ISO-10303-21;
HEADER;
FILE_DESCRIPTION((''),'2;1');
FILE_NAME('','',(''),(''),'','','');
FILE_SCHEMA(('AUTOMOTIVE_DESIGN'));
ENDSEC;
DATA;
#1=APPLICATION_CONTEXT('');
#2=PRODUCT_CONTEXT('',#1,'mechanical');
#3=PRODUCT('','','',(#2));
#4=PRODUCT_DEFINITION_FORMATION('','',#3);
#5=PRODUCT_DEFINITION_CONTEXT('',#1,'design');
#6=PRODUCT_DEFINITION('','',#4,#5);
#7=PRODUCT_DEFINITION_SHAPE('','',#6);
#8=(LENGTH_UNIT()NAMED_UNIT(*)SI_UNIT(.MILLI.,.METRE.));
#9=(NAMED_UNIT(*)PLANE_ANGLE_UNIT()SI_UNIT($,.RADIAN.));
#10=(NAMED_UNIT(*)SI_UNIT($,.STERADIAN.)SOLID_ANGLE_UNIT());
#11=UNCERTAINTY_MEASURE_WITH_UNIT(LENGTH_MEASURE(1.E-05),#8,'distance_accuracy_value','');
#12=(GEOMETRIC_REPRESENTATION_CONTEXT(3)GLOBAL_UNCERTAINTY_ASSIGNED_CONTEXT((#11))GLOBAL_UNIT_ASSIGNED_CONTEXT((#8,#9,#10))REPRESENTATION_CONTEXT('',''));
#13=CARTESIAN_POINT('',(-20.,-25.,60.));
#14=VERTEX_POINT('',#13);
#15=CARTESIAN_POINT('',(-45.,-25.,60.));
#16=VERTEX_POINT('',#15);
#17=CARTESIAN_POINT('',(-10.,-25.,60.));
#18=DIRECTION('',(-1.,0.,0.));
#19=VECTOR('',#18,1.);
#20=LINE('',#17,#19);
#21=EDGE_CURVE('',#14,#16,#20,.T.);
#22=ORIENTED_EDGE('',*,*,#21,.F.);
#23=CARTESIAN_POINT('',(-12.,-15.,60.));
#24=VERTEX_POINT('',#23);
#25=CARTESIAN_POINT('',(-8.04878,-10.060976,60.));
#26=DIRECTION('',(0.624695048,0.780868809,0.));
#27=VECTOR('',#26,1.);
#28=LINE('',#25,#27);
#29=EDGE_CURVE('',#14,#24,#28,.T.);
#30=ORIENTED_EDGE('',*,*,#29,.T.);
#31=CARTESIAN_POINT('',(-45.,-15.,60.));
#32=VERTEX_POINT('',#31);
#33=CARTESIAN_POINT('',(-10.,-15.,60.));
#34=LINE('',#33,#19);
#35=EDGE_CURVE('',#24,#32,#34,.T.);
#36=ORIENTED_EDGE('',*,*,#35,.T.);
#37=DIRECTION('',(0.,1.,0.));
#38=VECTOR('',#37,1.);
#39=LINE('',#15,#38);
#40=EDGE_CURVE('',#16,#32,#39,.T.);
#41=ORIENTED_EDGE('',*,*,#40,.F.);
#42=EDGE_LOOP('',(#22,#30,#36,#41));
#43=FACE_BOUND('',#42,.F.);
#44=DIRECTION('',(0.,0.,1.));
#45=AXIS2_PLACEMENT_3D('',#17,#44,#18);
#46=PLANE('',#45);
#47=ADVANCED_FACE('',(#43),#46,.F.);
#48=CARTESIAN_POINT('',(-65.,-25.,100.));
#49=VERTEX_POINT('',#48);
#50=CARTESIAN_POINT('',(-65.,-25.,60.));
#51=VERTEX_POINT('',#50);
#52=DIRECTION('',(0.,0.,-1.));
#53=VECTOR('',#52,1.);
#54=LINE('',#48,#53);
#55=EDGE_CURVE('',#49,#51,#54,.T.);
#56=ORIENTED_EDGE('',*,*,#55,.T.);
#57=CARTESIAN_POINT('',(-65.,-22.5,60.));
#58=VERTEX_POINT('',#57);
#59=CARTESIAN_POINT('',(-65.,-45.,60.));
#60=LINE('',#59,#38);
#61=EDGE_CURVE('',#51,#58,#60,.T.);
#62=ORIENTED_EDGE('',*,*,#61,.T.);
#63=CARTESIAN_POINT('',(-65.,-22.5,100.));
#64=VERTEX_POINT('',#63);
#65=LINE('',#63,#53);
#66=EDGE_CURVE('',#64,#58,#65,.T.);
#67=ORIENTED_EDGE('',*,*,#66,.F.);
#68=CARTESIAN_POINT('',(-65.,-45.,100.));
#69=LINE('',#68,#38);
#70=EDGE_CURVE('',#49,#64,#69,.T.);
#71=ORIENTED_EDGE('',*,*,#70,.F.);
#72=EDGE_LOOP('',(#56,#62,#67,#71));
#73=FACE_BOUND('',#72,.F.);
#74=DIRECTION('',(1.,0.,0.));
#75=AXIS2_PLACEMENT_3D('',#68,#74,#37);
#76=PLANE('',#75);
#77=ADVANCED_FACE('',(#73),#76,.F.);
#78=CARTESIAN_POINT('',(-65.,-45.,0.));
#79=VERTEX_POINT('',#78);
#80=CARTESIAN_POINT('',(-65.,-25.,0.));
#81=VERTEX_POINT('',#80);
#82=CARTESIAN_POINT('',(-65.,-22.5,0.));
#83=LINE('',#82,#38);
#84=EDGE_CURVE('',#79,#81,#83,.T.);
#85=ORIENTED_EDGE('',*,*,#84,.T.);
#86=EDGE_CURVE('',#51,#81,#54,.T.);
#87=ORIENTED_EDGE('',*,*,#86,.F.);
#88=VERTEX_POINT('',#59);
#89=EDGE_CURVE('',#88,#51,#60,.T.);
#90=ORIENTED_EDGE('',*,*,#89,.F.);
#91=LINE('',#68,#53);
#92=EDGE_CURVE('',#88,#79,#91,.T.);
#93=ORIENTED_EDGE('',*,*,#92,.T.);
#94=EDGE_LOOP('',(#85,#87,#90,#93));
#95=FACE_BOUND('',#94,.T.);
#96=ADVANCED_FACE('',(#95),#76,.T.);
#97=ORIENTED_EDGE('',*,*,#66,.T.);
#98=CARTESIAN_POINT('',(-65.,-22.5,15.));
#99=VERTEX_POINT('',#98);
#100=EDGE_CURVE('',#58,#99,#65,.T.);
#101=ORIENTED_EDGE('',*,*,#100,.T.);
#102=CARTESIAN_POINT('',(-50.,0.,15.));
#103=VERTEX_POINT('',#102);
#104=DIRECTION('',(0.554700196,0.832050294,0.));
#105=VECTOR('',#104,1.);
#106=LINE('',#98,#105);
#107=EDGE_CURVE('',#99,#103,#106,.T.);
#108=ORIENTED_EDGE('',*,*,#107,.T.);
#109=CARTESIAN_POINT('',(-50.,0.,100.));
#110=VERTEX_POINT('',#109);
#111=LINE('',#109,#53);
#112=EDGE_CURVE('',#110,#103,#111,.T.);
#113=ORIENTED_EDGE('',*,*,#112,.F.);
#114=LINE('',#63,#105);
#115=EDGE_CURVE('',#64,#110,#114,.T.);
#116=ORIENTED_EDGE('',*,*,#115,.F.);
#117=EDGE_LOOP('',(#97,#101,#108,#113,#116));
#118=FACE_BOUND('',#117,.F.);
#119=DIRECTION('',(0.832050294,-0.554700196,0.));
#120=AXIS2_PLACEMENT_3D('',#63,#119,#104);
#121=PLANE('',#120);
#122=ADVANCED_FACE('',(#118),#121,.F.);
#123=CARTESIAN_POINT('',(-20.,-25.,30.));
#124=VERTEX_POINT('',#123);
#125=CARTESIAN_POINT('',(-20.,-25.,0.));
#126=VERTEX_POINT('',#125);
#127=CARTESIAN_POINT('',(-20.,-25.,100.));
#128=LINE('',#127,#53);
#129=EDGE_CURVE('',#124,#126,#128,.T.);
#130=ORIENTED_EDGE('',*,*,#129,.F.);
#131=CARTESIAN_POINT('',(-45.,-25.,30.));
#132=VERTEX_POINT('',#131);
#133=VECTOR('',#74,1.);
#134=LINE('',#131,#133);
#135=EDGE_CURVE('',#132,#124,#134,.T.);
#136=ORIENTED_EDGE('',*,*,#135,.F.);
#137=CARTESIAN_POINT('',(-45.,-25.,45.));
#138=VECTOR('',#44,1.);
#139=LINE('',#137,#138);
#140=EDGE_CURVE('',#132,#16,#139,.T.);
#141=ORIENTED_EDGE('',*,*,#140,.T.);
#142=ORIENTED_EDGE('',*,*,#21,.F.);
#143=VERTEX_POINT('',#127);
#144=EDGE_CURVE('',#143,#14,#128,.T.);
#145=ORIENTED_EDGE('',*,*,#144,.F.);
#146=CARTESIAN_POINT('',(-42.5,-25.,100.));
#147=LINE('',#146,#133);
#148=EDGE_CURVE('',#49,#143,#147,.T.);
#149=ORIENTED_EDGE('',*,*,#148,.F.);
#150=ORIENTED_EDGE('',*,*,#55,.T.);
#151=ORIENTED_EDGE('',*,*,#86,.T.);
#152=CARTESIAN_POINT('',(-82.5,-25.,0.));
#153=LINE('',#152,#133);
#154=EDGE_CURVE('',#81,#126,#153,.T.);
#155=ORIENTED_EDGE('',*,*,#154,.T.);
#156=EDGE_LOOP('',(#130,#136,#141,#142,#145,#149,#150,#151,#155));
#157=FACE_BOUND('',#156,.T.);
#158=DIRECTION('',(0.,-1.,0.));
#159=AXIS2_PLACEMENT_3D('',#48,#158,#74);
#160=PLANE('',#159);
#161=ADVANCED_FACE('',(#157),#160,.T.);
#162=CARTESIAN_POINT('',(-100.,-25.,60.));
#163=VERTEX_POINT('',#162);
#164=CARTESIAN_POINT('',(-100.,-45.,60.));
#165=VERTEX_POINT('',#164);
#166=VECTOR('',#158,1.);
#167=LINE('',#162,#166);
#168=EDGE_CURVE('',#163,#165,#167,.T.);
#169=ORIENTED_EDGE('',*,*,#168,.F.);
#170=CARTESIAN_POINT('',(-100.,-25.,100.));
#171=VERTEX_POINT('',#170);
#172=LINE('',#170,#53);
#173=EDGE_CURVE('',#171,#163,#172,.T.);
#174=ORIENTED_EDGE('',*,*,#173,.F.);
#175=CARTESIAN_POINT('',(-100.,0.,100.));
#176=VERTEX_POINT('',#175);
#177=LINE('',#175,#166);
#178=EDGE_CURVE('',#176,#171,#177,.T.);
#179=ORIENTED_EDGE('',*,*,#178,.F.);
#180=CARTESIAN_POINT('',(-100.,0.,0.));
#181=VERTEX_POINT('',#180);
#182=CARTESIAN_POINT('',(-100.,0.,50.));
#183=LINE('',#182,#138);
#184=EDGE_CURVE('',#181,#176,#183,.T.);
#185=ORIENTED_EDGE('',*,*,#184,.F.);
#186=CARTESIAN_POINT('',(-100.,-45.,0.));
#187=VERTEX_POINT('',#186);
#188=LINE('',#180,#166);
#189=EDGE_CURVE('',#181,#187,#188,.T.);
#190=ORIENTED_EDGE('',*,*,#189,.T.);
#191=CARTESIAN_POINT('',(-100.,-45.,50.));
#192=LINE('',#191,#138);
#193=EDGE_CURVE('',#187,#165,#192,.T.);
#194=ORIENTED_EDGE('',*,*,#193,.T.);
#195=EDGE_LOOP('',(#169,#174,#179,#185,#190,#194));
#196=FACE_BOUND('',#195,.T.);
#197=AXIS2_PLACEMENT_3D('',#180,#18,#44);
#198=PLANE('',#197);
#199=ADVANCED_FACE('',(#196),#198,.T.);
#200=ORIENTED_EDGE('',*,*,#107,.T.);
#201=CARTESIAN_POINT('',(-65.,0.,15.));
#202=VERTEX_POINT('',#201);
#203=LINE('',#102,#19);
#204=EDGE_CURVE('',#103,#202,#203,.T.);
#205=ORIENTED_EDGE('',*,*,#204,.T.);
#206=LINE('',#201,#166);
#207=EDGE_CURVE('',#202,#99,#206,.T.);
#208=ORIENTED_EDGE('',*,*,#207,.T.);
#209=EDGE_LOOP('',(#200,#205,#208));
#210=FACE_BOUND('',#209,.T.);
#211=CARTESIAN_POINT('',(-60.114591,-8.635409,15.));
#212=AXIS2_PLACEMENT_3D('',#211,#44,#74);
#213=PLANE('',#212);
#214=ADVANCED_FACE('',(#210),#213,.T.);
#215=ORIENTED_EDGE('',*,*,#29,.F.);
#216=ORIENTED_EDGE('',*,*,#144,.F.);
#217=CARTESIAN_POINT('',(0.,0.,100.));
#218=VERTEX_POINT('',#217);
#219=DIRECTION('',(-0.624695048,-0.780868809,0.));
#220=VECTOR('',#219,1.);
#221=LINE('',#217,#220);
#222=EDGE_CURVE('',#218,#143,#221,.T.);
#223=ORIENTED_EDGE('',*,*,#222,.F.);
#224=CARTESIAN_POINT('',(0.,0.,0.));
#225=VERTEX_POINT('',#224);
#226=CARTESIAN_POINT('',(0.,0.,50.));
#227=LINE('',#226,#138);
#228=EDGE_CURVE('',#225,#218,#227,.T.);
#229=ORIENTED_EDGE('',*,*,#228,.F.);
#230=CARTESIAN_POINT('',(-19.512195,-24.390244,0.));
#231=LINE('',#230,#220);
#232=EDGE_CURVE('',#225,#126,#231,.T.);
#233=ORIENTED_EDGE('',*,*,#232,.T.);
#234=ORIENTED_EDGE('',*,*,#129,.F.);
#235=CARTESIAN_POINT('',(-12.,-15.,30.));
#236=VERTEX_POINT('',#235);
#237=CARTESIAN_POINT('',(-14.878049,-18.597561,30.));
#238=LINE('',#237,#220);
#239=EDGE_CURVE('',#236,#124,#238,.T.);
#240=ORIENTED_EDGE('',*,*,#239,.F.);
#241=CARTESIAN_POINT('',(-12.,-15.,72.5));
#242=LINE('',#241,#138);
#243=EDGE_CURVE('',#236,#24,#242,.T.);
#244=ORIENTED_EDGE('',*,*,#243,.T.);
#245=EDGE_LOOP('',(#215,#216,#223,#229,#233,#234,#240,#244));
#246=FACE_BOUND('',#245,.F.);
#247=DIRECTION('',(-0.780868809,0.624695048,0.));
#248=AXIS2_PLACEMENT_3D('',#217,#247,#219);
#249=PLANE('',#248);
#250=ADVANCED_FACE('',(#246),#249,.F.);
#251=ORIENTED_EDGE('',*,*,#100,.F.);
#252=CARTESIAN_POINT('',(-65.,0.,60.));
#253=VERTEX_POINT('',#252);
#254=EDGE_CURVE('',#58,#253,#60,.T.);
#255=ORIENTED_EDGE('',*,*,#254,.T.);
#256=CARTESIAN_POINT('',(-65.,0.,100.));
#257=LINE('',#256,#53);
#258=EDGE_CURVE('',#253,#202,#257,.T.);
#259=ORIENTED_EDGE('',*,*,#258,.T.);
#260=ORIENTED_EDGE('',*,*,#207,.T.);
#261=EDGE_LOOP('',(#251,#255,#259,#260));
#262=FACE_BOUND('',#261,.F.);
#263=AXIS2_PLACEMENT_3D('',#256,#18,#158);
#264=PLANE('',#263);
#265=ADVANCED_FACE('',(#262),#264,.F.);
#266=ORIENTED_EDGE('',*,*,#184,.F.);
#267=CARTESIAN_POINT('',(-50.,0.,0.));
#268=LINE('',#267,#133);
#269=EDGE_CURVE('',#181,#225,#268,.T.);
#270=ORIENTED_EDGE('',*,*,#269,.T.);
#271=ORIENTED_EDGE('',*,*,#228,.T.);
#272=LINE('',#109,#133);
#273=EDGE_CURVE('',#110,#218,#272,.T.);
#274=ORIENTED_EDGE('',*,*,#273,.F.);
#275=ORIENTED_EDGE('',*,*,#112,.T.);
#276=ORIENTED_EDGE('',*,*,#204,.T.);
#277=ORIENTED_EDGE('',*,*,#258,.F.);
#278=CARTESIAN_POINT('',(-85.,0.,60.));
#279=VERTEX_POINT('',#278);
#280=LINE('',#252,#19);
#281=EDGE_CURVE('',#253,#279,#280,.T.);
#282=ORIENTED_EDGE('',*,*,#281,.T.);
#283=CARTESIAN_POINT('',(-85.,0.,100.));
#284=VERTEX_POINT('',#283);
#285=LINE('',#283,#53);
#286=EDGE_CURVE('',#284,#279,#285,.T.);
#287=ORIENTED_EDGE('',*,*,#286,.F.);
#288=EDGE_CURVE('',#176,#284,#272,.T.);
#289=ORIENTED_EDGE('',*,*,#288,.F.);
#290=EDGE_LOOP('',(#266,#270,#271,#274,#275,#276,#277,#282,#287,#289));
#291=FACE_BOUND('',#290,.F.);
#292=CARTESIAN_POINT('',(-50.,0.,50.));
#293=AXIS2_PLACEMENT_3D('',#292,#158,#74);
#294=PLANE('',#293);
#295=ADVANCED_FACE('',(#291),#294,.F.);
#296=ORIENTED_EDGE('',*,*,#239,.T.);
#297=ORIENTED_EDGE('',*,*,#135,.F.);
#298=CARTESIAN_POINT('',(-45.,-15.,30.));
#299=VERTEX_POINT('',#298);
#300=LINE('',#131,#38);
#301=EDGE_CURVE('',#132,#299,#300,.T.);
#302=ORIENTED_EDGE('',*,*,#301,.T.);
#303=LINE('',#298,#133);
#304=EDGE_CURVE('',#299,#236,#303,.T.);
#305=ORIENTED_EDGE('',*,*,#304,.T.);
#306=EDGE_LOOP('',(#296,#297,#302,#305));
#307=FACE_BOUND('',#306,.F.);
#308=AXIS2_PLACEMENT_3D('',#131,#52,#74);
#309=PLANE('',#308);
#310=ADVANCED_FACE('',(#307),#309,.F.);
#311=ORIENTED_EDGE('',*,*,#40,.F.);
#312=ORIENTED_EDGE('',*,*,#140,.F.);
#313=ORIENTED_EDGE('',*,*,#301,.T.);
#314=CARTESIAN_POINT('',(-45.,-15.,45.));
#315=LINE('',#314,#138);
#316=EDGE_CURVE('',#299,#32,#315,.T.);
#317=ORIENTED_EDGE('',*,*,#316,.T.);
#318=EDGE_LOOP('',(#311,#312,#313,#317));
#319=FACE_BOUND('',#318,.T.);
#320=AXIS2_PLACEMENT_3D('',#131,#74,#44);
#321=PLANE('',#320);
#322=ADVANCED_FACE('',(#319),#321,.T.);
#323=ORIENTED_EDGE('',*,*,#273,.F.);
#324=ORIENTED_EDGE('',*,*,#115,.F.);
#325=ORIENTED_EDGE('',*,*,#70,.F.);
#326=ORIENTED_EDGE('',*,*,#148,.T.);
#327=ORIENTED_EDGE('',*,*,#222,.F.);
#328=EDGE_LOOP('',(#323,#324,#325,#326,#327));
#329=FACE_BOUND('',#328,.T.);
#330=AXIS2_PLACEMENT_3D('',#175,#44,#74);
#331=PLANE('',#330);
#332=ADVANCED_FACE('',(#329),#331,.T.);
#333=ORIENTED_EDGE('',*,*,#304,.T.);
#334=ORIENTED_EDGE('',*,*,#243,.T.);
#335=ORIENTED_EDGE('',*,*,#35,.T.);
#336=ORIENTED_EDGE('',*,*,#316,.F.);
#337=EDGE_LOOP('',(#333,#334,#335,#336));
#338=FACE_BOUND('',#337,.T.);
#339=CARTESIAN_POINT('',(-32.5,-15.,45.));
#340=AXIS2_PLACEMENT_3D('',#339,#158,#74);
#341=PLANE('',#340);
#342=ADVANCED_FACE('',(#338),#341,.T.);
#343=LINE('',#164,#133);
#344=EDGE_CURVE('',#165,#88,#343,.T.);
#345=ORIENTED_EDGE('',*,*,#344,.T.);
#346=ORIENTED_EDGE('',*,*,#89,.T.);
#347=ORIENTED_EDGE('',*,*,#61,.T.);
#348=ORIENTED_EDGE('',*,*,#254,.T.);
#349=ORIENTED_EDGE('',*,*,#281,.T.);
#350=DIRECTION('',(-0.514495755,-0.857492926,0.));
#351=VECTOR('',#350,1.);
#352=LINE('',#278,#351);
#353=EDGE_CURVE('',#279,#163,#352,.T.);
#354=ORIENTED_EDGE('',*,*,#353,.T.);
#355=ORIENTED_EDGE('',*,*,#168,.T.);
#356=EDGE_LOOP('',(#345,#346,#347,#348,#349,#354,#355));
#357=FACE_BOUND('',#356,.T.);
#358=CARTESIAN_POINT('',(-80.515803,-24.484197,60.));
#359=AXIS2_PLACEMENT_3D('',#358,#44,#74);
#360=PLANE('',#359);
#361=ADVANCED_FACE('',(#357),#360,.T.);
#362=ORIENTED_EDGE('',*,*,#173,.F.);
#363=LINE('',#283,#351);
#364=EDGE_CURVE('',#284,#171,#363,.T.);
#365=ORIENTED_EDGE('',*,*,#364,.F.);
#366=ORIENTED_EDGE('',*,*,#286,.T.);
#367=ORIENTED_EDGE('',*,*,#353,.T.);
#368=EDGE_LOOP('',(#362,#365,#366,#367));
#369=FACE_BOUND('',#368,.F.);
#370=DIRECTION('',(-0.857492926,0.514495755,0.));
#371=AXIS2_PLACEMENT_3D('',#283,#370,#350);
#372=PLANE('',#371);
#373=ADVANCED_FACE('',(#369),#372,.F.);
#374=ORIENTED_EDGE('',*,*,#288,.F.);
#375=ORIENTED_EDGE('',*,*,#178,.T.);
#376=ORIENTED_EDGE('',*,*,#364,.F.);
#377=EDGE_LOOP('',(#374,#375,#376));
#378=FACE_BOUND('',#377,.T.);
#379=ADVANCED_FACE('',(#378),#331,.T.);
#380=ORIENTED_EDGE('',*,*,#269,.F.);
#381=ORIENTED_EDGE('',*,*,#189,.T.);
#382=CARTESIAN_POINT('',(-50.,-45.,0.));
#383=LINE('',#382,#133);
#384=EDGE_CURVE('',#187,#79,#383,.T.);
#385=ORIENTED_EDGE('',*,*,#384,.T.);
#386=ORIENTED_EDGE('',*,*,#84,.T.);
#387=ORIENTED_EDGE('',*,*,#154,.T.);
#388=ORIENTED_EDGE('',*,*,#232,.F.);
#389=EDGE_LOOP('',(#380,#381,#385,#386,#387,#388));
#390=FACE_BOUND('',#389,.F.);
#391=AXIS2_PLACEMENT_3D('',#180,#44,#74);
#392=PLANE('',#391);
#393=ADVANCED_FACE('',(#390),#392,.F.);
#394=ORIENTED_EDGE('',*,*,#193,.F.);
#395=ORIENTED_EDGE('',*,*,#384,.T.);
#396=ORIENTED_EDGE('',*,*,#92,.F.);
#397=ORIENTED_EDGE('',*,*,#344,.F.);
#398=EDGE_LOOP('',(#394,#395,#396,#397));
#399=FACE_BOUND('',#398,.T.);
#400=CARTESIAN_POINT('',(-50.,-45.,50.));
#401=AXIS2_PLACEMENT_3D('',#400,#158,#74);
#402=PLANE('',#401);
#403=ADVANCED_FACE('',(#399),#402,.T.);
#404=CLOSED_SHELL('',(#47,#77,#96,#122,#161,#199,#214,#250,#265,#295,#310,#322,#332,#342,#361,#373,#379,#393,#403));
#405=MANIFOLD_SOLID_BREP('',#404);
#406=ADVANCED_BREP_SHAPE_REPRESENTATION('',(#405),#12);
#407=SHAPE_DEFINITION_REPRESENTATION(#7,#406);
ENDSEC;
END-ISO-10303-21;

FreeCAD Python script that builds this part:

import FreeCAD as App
import Part
import Sketcher

V = App.Vector

doc = App.newDocument("Part")
body = doc.addObject("PartDesign::Body", "Body")

# Sketch on XZ plane
sketch1 = body.newObject("Sketcher::SketchObject", "Sketch")
sketch1.AttachmentSupport = (doc.getObject("XZ_Plane"), [""])
sketch1.MapMode = "FlatFace"
sketch1.addGeometry([
    Part.LineSegment(V(-100, 100, 0), V(-100, 0, 0)),
    Part.LineSegment(V(-100, 0, 0), V(0, 0, 0)),
    Part.LineSegment(V(0, 0, 0), V(0, 100, 0)),
    Part.LineSegment(V(0, 100, 0), V(-100, 100, 0)),
], False)
sketch1.addConstraint([
    Sketcher.Constraint("Coincident", 0, 2, 1, 1),
    Sketcher.Constraint("Coincident", 1, 2, 2, 1),
    Sketcher.Constraint("Coincident", 2, 2, 3, 1),
    Sketcher.Constraint("Coincident", 3, 2, 0, 1),
    Sketcher.Constraint("Vertical", 0),
    Sketcher.Constraint("Horizontal", 1),
    Sketcher.Constraint("Vertical", 2),
    Sketcher.Constraint("Horizontal", 3),
    Sketcher.Constraint("Coincident", 1, 2, -1, 1),
    Sketcher.Constraint("Equal", 3, 0),
    Sketcher.Constraint("DistanceX", 1, 1, 1, 2, 100.0),
])
pad1 = body.newObject("PartDesign::Pad", "Pad")
pad1.Profile = sketch1
pad1.Length = 45

# Sketch on XY plane
sketch2 = body.newObject("Sketcher::SketchObject", "Sketch001")
sketch2.AttachmentSupport = (doc.getObject("XY_Plane"), [""])
sketch2.MapMode = "FlatFace"
sketch2.AttachmentOffset = App.Placement(V(0, 0, 100), App.Rotation())
sketch2.addGeometry([
    Part.LineSegment(V(-100, -25, 0), V(-100, -45, 0)),  # 0
    Part.LineSegment(V(-100, -45, 0), V(-65, -45, 0)),  # 1
    Part.LineSegment(V(-65, -45, 0), V(-65, 0, 0)),  # 2
    Part.LineSegment(V(-65, 0, 0), V(-85, 0, 0)),  # 3
    Part.LineSegment(V(-85, 0, 0), V(-100, -25, 0)),  # 4
], False)
sketch2.addConstraint([
    Sketcher.Constraint("Coincident", 0, 2, 1, 1),
    Sketcher.Constraint("Coincident", 1, 2, 2, 1),
    Sketcher.Constraint("Coincident", 2, 2, 3, 1),
    Sketcher.Constraint("Coincident", 3, 2, 4, 1),
    Sketcher.Constraint("Coincident", 4, 2, 0, 1),
    Sketcher.Constraint("Vertical", 0),
    Sketcher.Constraint("Horizontal", 1),
    Sketcher.Constraint("Vertical", 2),
    Sketcher.Constraint("Horizontal", 3),
    Sketcher.Constraint("PointOnObject", 2, 2, -1),
    Sketcher.Constraint("Equal", 3, 0),
    Sketcher.Constraint("DistanceX", 1, 1, 1, 2, 35.0),
    Sketcher.Constraint("DistanceX", 3, 2, 3, 1, 20.0),
    Sketcher.Constraint("DistanceY", 2, 1, 2, 2, 45.0),
    Sketcher.Constraint("DistanceX", 0, 2, -1, 1, 100.0),
])
pocket1 = body.newObject("PartDesign::Pocket", "Pocket")
pocket1.Profile = sketch2
pocket1.Length = 40

# Sketch on XY plane
sketch3 = body.newObject("Sketcher::SketchObject", "Sketch002")
sketch3.AttachmentSupport = (doc.getObject("XY_Plane"), [""])
sketch3.MapMode = "FlatFace"
sketch3.AttachmentOffset = App.Placement(V(0, 0, 100), App.Rotation())
sketch3.addGeometry([
    Part.LineSegment(V(-50, 0, 0), V(-65, 0, 0)),
    Part.LineSegment(V(-65, 0, 0), V(-65, -22, 0)),
    Part.LineSegment(V(-65, -22, 0), V(-50, 0, 0)),
], False)
sketch3.addConstraint([
    Sketcher.Constraint("Coincident", 0, 2, 1, 1),
    Sketcher.Constraint("Coincident", 1, 2, 2, 1),
    Sketcher.Constraint("Coincident", 2, 2, 0, 1),
    Sketcher.Constraint("Horizontal", 0),
    Sketcher.Constraint("Vertical", 1),
    Sketcher.Constraint("PointOnObject", 0, 2, -1),
    Sketcher.Constraint("DistanceX", 0, 2, 0, 1, 15.0),
    Sketcher.Constraint("DistanceY", 1, 2, 1, 1, 22.5),
    Sketcher.Constraint("DistanceX", 0, 2, -1, 1, 65.0),
])
pocket2 = body.newObject("PartDesign::Pocket", "Pocket001")
pocket2.Profile = sketch3
pocket2.Length = 85

# Sketch on XY plane
sketch4 = body.newObject("Sketcher::SketchObject", "Sketch003")
sketch4.AttachmentSupport = (doc.getObject("XY_Plane"), [""])
sketch4.MapMode = "FlatFace"
sketch4.AttachmentOffset = App.Placement(V(0, 0, 100), App.Rotation())
sketch4.addGeometry([
    Part.LineSegment(V(-65, -25, 0), V(-65, -45, 0)),
    Part.LineSegment(V(-65, -45, 0), V(-20, -45, 0)),
    Part.LineSegment(V(-20, -45, 0), V(-20, -25, 0)),
    Part.LineSegment(V(-20, -25, 0), V(-65, -25, 0)),
], False)
sketch4.addConstraint([
    Sketcher.Constraint("Coincident", 0, 2, 1, 1),
    Sketcher.Constraint("Coincident", 1, 2, 2, 1),
    Sketcher.Constraint("Coincident", 2, 2, 3, 1),
    Sketcher.Constraint("Coincident", 3, 2, 0, 1),
    Sketcher.Constraint("Vertical", 0),
    Sketcher.Constraint("Horizontal", 1),
    Sketcher.Constraint("Vertical", 2),
    Sketcher.Constraint("Horizontal", 3),
    Sketcher.Constraint("DistanceX", 1, 1, 1, 2, 45.0),
    Sketcher.Constraint("DistanceY", 0, 2, 0, 1, 20.0),
    Sketcher.Constraint("DistanceX", 0, 2, -1, 1, 65.0),
    Sketcher.Constraint("DistanceY", 0, 2, -1, 1, 45.0),
])
pocket3 = body.newObject("PartDesign::Pocket", "Pocket002")
pocket3.Profile = sketch4
pocket3.Type = "ThroughAll"

# Sketch on XY plane
sketch5 = body.newObject("Sketcher::SketchObject", "Sketch004")
sketch5.AttachmentSupport = (doc.getObject("XY_Plane"), [""])
sketch5.MapMode = "FlatFace"
sketch5.AttachmentOffset = App.Placement(V(0, 0, 100), App.Rotation())
sketch5.addGeometry([
    Part.LineSegment(V(0, 0, 0), V(-20, -25, 0)),
    Part.LineSegment(V(-20, -25, 0), V(-20, -45, 0)),
    Part.LineSegment(V(-20, -45, 0), V(0, -45, 0)),
    Part.LineSegment(V(0, -45, 0), V(0, 0, 0)),
], False)
sketch5.addConstraint([
    Sketcher.Constraint("Coincident", 0, 2, 1, 1),
    Sketcher.Constraint("Coincident", 1, 2, 2, 1),
    Sketcher.Constraint("Coincident", 2, 2, 3, 1),
    Sketcher.Constraint("Coincident", 3, 2, 0, 1),
    Sketcher.Constraint("Vertical", 1),
    Sketcher.Constraint("Horizontal", 2),
    Sketcher.Constraint("Vertical", 3),
    Sketcher.Constraint("Coincident", 3, 2, -1, 1),
    Sketcher.Constraint("Equal", 2, 1),
    Sketcher.Constraint("DistanceX", 2, 1, 2, 2, 20.0),
    Sketcher.Constraint("DistanceY", 3, 1, 3, 2, 45.0),
])
pocket4 = body.newObject("PartDesign::Pocket", "Pocket003")
pocket4.Profile = sketch5
pocket4.Type = "ThroughAll"

# Sketch on XZ plane
sketch6 = body.newObject("Sketcher::SketchObject", "Sketch005")
sketch6.AttachmentSupport = (doc.getObject("XZ_Plane"), [""])
sketch6.MapMode = "FlatFace"
sketch6.AttachmentOffset = App.Placement(V(0, 0, 25), App.Rotation())
sketch6.addGeometry([
    Part.LineSegment(V(-45, 60, 0), V(-45, 30, 0)),
    Part.LineSegment(V(-45, 30, 0), V(-10, 30, 0)),
    Part.LineSegment(V(-10, 30, 0), V(-10, 60, 0)),
    Part.LineSegment(V(-10, 60, 0), V(-45, 60, 0)),
], False)
sketch6.addConstraint([
    Sketcher.Constraint("Coincident", 0, 2, 1, 1),
    Sketcher.Constraint("Coincident", 1, 2, 2, 1),
    Sketcher.Constraint("Coincident", 2, 2, 3, 1),
    Sketcher.Constraint("Coincident", 3, 2, 0, 1),
    Sketcher.Constraint("Vertical", 0),
    Sketcher.Constraint("Horizontal", 1),
    Sketcher.Constraint("Vertical", 2),
    Sketcher.Constraint("Horizontal", 3),
    Sketcher.Constraint("DistanceX", 1, 1, 1, 2, 35.0),
    Sketcher.Constraint("DistanceY", 0, 2, 0, 1, 30.0),
    Sketcher.Constraint("DistanceX", 0, 2, -1, 1, 45.0),
    Sketcher.Constraint("DistanceY", -1, 1, 0, 2, 30.0),
])
pocket5 = body.newObject("PartDesign::Pocket", "Pocket004")
pocket5.Profile = sketch6
pocket5.Length = 10

doc.recompute()
